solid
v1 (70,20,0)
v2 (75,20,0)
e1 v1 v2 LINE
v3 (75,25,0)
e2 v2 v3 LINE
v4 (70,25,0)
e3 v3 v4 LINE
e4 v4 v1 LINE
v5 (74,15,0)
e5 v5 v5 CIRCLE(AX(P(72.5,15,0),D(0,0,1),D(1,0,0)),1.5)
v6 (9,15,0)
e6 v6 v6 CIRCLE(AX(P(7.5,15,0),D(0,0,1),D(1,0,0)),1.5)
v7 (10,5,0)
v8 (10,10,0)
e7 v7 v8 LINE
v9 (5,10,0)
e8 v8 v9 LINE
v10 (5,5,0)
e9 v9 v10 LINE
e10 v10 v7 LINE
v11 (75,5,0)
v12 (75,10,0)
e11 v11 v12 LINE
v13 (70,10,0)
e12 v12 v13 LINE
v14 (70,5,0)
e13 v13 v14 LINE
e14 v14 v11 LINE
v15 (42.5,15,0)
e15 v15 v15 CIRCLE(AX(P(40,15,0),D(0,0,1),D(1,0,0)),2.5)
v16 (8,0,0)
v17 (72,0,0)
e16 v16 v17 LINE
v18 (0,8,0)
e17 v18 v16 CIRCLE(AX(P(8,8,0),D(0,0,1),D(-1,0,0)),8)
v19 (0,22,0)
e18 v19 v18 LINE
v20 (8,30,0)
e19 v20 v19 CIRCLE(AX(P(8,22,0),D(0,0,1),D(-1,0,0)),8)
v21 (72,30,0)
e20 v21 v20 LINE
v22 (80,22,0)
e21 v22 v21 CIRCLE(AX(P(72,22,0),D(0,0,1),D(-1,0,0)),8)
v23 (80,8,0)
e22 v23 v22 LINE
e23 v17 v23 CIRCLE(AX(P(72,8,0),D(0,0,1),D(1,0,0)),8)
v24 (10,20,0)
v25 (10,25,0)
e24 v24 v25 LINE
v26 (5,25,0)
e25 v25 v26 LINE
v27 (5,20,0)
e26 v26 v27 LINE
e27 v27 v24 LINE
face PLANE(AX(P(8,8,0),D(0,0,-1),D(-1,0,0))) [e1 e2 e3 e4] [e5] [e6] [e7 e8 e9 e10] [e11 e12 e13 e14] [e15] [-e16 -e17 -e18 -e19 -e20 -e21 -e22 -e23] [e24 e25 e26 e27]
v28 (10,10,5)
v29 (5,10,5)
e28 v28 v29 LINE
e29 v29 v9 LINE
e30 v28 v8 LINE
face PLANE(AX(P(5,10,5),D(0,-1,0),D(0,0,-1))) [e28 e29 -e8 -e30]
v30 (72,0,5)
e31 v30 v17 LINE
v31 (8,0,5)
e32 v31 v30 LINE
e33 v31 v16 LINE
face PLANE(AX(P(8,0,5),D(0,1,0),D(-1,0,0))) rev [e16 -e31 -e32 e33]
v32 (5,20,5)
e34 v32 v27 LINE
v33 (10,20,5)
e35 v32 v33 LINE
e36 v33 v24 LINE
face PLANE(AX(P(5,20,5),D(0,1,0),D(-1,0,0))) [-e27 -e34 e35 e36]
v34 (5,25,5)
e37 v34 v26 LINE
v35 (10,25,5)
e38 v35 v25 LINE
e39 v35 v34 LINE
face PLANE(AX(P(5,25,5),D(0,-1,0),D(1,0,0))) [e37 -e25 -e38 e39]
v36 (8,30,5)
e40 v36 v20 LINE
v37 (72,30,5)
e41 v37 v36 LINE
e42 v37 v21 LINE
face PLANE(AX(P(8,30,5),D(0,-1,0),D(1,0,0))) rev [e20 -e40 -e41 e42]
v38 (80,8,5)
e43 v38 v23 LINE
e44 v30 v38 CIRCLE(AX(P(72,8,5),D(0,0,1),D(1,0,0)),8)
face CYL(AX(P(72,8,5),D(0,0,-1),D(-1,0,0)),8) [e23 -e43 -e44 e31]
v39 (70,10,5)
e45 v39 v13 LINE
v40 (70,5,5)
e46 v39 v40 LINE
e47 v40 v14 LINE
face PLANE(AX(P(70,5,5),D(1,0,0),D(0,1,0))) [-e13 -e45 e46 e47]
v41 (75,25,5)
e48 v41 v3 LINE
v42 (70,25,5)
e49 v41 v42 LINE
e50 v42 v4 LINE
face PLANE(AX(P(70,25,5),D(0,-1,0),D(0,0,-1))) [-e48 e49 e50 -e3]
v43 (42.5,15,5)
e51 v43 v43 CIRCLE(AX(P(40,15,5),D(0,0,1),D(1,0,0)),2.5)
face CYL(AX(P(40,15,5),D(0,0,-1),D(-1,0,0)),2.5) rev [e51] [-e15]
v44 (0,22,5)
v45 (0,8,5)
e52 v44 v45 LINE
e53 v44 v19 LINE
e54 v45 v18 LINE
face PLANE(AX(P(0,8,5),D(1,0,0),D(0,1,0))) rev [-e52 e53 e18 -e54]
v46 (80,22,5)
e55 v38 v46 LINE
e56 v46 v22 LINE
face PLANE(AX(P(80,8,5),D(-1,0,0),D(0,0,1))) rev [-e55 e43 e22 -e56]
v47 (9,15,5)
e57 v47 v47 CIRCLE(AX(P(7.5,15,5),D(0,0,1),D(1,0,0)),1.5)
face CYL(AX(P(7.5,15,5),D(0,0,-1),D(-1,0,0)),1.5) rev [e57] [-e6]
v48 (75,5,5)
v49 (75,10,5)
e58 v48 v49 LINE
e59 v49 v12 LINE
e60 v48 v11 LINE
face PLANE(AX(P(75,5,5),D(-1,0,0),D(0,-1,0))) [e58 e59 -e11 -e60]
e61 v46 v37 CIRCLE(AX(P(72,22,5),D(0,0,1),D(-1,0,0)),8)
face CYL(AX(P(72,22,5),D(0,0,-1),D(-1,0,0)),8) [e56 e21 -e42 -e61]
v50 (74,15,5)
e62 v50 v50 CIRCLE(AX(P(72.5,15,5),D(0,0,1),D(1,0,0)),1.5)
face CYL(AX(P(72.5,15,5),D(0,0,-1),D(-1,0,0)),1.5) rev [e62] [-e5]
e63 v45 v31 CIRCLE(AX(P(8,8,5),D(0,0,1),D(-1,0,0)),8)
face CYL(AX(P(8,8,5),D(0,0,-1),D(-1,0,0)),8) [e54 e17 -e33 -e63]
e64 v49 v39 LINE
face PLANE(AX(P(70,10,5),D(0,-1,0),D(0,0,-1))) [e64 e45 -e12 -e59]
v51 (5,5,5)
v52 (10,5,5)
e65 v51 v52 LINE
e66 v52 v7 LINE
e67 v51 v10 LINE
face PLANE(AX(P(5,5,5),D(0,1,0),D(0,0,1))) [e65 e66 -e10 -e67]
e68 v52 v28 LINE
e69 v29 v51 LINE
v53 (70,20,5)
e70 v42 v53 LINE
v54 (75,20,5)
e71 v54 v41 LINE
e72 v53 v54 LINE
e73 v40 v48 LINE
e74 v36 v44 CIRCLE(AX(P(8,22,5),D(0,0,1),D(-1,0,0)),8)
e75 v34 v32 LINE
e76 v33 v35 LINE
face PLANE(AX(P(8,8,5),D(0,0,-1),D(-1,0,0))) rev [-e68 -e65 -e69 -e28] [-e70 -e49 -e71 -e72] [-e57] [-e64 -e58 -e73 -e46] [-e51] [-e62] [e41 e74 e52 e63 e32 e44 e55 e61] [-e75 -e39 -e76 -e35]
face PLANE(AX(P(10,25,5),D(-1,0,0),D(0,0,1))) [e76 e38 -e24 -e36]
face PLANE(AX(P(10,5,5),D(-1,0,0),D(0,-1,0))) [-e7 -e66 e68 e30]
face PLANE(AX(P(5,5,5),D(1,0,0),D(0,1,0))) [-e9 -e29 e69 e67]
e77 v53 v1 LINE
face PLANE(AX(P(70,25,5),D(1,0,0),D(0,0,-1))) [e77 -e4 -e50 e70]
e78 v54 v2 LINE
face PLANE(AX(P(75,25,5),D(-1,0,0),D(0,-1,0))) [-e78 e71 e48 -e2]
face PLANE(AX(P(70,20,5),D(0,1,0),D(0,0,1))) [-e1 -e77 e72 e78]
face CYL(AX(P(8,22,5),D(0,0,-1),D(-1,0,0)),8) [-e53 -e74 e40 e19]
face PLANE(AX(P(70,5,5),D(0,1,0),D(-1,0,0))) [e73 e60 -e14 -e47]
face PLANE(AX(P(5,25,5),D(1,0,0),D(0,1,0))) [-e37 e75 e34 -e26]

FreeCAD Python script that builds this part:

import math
import FreeCAD as App
import Part
import Sketcher
from FreeCAD import Vector
Q = App.Units.Quantity

doc = App.newDocument("Part")
body = doc.addObject("PartDesign::Body", "Body")

# Sketch on XY plane
sketch1 = doc.addObject("Sketcher::SketchObject", "Sketch")
body.addObject(sketch1)
sketch1.AttachmentSupport = (doc.XY_Plane, [""])
sketch1.MapMode = "FlatFace"
sketch1.addGeometry([
    Part.LineSegment(Vector(8, 0, 0), Vector(72, 0, 0)),  # 0
    Part.ArcOfCircle(Part.Circle(Vector(72, 8, 0), Vector(0, 0, 1), 8), math.radians(-90), math.radians(0)),  # 1
    Part.LineSegment(Vector(80, 8, 0), Vector(80, 22, 0)),  # 2
    Part.ArcOfCircle(Part.Circle(Vector(72, 22, 0), Vector(0, 0, 1), 8), math.radians(0), math.radians(90)),  # 3
    Part.LineSegment(Vector(72, 30, 0), Vector(8, 30, 0)),  # 4
    Part.ArcOfCircle(Part.Circle(Vector(8, 22, 0), Vector(0, 0, 1), 8), math.radians(90), math.radians(180)),  # 5
    Part.LineSegment(Vector(0, 22, 0), Vector(0, 8, 0)),  # 6
    Part.ArcOfCircle(Part.Circle(Vector(8, 8, 0), Vector(0, 0, 1), 8), math.radians(-180), math.radians(-90)),  # 7
    Part.LineSegment(Vector(10, 5, 0), Vector(5, 5, 0)),  # 8
    Part.LineSegment(Vector(5, 5, 0), Vector(5, 10, 0)),  # 9
    Part.LineSegment(Vector(5, 10, 0), Vector(10, 10, 0)),  # 10
    Part.LineSegment(Vector(10, 10, 0), Vector(10, 5, 0)),  # 11
    Part.LineSegment(Vector(75, 5, 0), Vector(70, 5, 0)),  # 12
    Part.LineSegment(Vector(70, 5, 0), Vector(70, 10, 0)),  # 13
    Part.LineSegment(Vector(70, 10, 0), Vector(75, 10, 0)),  # 14
    Part.LineSegment(Vector(75, 10, 0), Vector(75, 5, 0)),  # 15
    Part.Circle(Vector(7.5, 15, 0), Vector(0, 0, 1), 1.5),  # 16
    Part.LineSegment(Vector(10, 20, 0), Vector(5, 20, 0)),  # 17
    Part.LineSegment(Vector(5, 20, 0), Vector(5, 25, 0)),  # 18
    Part.LineSegment(Vector(5, 25, 0), Vector(10, 25, 0)),  # 19
    Part.LineSegment(Vector(10, 25, 0), Vector(10, 20, 0)),  # 20
    Part.Circle(Vector(40, 15, 0), Vector(0, 0, 1), 2.5),  # 21
    Part.Circle(Vector(72.5, 15, 0), Vector(0, 0, 1), 1.5),  # 22
    Part.LineSegment(Vector(75, 20, 0), Vector(70, 20, 0)),  # 23
    Part.LineSegment(Vector(70, 20, 0), Vector(70, 25, 0)),  # 24
    Part.LineSegment(Vector(70, 25, 0), Vector(75, 25, 0)),  # 25
    Part.LineSegment(Vector(75, 25, 0), Vector(75, 20, 0)),  # 26
], False)
sketch1.addConstraint([
    Sketcher.Constraint("Tangent", 0, 2, 1, 1),
    Sketcher.Constraint("Tangent", 1, 2, 2, 1),
    Sketcher.Constraint("Tangent", 2, 2, 3, 1),
    Sketcher.Constraint("Tangent", 3, 2, 4, 1),
    Sketcher.Constraint("Tangent", 4, 2, 5, 1),
    Sketcher.Constraint("Tangent", 5, 2, 6, 1),
    Sketcher.Constraint("Tangent", 6, 2, 7, 1),
    Sketcher.Constraint("Tangent", 7, 2, 0, 1),
    Sketcher.Constraint("Coincident", 8, 2, 9, 1),
    Sketcher.Constraint("Coincident", 9, 2, 10, 1),
    Sketcher.Constraint("Coincident", 10, 2, 11, 1),
    Sketcher.Constraint("Coincident", 11, 2, 8, 1),
    Sketcher.Constraint("Coincident", 12, 2, 13, 1),
    Sketcher.Constraint("Coincident", 13, 2, 14, 1),
    Sketcher.Constraint("Coincident", 14, 2, 15, 1),
    Sketcher.Constraint("Coincident", 15, 2, 12, 1),
    Sketcher.Constraint("Coincident", 17, 2, 18, 1),
    Sketcher.Constraint("Coincident", 18, 2, 19, 1),
    Sketcher.Constraint("Coincident", 19, 2, 20, 1),
    Sketcher.Constraint("Coincident", 20, 2, 17, 1),
    Sketcher.Constraint("Coincident", 23, 2, 24, 1),
    Sketcher.Constraint("Coincident", 24, 2, 25, 1),
    Sketcher.Constraint("Coincident", 25, 2, 26, 1),
    Sketcher.Constraint("Coincident", 26, 2, 23, 1),
    Sketcher.Constraint("Horizontal", 0),
    Sketcher.Constraint("Vertical", 2),
    Sketcher.Constraint("Horizontal", 4),
    Sketcher.Constraint("Vertical", 6),
    Sketcher.Constraint("Horizontal", 8),
    Sketcher.Constraint("Vertical", 9),
    Sketcher.Constraint("Horizontal", 10),
    Sketcher.Constraint("Vertical", 11),
    Sketcher.Constraint("Horizontal", 12),
    Sketcher.Constraint("Vertical", 13),
    Sketcher.Constraint("Horizontal", 14),
    Sketcher.Constraint("Vertical", 15),
    Sketcher.Constraint("Horizontal", 17),
    Sketcher.Constraint("Vertical", 18),
    Sketcher.Constraint("Horizontal", 19),
    Sketcher.Constraint("Vertical", 20),
    Sketcher.Constraint("Horizontal", 23),
    Sketcher.Constraint("Vertical", 24),
    Sketcher.Constraint("Horizontal", 25),
    Sketcher.Constraint("Vertical", 26),
    Sketcher.Constraint("Equal", 1, 3),
    Sketcher.Constraint("Equal", 3, 5),
    Sketcher.Constraint("Equal", 5, 7),
    Sketcher.Constraint("Equal", 16, 22),
    Sketcher.Constraint("PointOnObject", 0, 2, -1),
    Sketcher.Constraint("PointOnObject", 5, 2, -2),
    Sketcher.Constraint("Horizontal", 16, 3, 21, 3),
    Sketcher.Constraint("Horizontal", 21, 3, 22, 3),
    Sketcher.Constraint("Horizontal", 11, 2, 12, 2),
    Sketcher.Constraint("Horizontal", 10, 2, 13, 2),
    Sketcher.Constraint("Horizontal", 20, 2, 23, 2),
    Sketcher.Constraint("Horizontal", 19, 2, 24, 2),
    Sketcher.Constraint("Vertical", 9, 2, 17, 2),
    Sketcher.Constraint("Vertical", 11, 2, 19, 2),
    Sketcher.Constraint("Vertical", 13, 2, 23, 2),
    Sketcher.Constraint("Vertical", 15, 2, 25, 2),
    Sketcher.Constraint("Equal", 10, 12),
    Sketcher.Constraint("Equal", 25, 9),
    Sketcher.Constraint("Equal", 15, 18),
    Sketcher.Constraint("Diameter", 16, Q("3 mm")),
    Sketcher.Constraint("Diameter", 21, Q("5 mm")),
    Sketcher.Constraint("Radius", 1, Q("8 mm")),
    Sketcher.Constraint("DistanceX", 0, 1, 0, 2, Q("64 mm")),
    Sketcher.Constraint("DistanceX", 8, 2, 8, 1, Q("5 mm")),
    Sketcher.Constraint("DistanceY", 2, 1, 2, 2, Q("14 mm")),
    Sketcher.Constraint("DistanceY", -1, 1, 16, 3, Q("15 mm")),
    Sketcher.Constraint("DistanceX", -1, 1, 21, 3, Q("40 mm")),
    Sketcher.Constraint("DistanceX", -1, 1, 8, 2, Q("5 mm")),
    Sketcher.Constraint("DistanceY", -1, 1, 8, 2, Q("5 mm")),
    Sketcher.Constraint("DistanceX", -1, 1, 12, 2, Q("70 mm")),
    Sketcher.Constraint("DistanceY", -1, 1, 17, 2, Q("20 mm")),
    Sketcher.Constraint("DistanceX", -1, 1, 16, 3, Q("7.5 mm")),
    Sketcher.Constraint("DistanceX", -1, 1, 22, 3, Q("72.5 mm")),
])
pad1 = doc.addObject("PartDesign::Pad", "Pad")
body.addObject(pad1)
pad1.Profile = sketch1
pad1.Length = 5

doc.recompute()
